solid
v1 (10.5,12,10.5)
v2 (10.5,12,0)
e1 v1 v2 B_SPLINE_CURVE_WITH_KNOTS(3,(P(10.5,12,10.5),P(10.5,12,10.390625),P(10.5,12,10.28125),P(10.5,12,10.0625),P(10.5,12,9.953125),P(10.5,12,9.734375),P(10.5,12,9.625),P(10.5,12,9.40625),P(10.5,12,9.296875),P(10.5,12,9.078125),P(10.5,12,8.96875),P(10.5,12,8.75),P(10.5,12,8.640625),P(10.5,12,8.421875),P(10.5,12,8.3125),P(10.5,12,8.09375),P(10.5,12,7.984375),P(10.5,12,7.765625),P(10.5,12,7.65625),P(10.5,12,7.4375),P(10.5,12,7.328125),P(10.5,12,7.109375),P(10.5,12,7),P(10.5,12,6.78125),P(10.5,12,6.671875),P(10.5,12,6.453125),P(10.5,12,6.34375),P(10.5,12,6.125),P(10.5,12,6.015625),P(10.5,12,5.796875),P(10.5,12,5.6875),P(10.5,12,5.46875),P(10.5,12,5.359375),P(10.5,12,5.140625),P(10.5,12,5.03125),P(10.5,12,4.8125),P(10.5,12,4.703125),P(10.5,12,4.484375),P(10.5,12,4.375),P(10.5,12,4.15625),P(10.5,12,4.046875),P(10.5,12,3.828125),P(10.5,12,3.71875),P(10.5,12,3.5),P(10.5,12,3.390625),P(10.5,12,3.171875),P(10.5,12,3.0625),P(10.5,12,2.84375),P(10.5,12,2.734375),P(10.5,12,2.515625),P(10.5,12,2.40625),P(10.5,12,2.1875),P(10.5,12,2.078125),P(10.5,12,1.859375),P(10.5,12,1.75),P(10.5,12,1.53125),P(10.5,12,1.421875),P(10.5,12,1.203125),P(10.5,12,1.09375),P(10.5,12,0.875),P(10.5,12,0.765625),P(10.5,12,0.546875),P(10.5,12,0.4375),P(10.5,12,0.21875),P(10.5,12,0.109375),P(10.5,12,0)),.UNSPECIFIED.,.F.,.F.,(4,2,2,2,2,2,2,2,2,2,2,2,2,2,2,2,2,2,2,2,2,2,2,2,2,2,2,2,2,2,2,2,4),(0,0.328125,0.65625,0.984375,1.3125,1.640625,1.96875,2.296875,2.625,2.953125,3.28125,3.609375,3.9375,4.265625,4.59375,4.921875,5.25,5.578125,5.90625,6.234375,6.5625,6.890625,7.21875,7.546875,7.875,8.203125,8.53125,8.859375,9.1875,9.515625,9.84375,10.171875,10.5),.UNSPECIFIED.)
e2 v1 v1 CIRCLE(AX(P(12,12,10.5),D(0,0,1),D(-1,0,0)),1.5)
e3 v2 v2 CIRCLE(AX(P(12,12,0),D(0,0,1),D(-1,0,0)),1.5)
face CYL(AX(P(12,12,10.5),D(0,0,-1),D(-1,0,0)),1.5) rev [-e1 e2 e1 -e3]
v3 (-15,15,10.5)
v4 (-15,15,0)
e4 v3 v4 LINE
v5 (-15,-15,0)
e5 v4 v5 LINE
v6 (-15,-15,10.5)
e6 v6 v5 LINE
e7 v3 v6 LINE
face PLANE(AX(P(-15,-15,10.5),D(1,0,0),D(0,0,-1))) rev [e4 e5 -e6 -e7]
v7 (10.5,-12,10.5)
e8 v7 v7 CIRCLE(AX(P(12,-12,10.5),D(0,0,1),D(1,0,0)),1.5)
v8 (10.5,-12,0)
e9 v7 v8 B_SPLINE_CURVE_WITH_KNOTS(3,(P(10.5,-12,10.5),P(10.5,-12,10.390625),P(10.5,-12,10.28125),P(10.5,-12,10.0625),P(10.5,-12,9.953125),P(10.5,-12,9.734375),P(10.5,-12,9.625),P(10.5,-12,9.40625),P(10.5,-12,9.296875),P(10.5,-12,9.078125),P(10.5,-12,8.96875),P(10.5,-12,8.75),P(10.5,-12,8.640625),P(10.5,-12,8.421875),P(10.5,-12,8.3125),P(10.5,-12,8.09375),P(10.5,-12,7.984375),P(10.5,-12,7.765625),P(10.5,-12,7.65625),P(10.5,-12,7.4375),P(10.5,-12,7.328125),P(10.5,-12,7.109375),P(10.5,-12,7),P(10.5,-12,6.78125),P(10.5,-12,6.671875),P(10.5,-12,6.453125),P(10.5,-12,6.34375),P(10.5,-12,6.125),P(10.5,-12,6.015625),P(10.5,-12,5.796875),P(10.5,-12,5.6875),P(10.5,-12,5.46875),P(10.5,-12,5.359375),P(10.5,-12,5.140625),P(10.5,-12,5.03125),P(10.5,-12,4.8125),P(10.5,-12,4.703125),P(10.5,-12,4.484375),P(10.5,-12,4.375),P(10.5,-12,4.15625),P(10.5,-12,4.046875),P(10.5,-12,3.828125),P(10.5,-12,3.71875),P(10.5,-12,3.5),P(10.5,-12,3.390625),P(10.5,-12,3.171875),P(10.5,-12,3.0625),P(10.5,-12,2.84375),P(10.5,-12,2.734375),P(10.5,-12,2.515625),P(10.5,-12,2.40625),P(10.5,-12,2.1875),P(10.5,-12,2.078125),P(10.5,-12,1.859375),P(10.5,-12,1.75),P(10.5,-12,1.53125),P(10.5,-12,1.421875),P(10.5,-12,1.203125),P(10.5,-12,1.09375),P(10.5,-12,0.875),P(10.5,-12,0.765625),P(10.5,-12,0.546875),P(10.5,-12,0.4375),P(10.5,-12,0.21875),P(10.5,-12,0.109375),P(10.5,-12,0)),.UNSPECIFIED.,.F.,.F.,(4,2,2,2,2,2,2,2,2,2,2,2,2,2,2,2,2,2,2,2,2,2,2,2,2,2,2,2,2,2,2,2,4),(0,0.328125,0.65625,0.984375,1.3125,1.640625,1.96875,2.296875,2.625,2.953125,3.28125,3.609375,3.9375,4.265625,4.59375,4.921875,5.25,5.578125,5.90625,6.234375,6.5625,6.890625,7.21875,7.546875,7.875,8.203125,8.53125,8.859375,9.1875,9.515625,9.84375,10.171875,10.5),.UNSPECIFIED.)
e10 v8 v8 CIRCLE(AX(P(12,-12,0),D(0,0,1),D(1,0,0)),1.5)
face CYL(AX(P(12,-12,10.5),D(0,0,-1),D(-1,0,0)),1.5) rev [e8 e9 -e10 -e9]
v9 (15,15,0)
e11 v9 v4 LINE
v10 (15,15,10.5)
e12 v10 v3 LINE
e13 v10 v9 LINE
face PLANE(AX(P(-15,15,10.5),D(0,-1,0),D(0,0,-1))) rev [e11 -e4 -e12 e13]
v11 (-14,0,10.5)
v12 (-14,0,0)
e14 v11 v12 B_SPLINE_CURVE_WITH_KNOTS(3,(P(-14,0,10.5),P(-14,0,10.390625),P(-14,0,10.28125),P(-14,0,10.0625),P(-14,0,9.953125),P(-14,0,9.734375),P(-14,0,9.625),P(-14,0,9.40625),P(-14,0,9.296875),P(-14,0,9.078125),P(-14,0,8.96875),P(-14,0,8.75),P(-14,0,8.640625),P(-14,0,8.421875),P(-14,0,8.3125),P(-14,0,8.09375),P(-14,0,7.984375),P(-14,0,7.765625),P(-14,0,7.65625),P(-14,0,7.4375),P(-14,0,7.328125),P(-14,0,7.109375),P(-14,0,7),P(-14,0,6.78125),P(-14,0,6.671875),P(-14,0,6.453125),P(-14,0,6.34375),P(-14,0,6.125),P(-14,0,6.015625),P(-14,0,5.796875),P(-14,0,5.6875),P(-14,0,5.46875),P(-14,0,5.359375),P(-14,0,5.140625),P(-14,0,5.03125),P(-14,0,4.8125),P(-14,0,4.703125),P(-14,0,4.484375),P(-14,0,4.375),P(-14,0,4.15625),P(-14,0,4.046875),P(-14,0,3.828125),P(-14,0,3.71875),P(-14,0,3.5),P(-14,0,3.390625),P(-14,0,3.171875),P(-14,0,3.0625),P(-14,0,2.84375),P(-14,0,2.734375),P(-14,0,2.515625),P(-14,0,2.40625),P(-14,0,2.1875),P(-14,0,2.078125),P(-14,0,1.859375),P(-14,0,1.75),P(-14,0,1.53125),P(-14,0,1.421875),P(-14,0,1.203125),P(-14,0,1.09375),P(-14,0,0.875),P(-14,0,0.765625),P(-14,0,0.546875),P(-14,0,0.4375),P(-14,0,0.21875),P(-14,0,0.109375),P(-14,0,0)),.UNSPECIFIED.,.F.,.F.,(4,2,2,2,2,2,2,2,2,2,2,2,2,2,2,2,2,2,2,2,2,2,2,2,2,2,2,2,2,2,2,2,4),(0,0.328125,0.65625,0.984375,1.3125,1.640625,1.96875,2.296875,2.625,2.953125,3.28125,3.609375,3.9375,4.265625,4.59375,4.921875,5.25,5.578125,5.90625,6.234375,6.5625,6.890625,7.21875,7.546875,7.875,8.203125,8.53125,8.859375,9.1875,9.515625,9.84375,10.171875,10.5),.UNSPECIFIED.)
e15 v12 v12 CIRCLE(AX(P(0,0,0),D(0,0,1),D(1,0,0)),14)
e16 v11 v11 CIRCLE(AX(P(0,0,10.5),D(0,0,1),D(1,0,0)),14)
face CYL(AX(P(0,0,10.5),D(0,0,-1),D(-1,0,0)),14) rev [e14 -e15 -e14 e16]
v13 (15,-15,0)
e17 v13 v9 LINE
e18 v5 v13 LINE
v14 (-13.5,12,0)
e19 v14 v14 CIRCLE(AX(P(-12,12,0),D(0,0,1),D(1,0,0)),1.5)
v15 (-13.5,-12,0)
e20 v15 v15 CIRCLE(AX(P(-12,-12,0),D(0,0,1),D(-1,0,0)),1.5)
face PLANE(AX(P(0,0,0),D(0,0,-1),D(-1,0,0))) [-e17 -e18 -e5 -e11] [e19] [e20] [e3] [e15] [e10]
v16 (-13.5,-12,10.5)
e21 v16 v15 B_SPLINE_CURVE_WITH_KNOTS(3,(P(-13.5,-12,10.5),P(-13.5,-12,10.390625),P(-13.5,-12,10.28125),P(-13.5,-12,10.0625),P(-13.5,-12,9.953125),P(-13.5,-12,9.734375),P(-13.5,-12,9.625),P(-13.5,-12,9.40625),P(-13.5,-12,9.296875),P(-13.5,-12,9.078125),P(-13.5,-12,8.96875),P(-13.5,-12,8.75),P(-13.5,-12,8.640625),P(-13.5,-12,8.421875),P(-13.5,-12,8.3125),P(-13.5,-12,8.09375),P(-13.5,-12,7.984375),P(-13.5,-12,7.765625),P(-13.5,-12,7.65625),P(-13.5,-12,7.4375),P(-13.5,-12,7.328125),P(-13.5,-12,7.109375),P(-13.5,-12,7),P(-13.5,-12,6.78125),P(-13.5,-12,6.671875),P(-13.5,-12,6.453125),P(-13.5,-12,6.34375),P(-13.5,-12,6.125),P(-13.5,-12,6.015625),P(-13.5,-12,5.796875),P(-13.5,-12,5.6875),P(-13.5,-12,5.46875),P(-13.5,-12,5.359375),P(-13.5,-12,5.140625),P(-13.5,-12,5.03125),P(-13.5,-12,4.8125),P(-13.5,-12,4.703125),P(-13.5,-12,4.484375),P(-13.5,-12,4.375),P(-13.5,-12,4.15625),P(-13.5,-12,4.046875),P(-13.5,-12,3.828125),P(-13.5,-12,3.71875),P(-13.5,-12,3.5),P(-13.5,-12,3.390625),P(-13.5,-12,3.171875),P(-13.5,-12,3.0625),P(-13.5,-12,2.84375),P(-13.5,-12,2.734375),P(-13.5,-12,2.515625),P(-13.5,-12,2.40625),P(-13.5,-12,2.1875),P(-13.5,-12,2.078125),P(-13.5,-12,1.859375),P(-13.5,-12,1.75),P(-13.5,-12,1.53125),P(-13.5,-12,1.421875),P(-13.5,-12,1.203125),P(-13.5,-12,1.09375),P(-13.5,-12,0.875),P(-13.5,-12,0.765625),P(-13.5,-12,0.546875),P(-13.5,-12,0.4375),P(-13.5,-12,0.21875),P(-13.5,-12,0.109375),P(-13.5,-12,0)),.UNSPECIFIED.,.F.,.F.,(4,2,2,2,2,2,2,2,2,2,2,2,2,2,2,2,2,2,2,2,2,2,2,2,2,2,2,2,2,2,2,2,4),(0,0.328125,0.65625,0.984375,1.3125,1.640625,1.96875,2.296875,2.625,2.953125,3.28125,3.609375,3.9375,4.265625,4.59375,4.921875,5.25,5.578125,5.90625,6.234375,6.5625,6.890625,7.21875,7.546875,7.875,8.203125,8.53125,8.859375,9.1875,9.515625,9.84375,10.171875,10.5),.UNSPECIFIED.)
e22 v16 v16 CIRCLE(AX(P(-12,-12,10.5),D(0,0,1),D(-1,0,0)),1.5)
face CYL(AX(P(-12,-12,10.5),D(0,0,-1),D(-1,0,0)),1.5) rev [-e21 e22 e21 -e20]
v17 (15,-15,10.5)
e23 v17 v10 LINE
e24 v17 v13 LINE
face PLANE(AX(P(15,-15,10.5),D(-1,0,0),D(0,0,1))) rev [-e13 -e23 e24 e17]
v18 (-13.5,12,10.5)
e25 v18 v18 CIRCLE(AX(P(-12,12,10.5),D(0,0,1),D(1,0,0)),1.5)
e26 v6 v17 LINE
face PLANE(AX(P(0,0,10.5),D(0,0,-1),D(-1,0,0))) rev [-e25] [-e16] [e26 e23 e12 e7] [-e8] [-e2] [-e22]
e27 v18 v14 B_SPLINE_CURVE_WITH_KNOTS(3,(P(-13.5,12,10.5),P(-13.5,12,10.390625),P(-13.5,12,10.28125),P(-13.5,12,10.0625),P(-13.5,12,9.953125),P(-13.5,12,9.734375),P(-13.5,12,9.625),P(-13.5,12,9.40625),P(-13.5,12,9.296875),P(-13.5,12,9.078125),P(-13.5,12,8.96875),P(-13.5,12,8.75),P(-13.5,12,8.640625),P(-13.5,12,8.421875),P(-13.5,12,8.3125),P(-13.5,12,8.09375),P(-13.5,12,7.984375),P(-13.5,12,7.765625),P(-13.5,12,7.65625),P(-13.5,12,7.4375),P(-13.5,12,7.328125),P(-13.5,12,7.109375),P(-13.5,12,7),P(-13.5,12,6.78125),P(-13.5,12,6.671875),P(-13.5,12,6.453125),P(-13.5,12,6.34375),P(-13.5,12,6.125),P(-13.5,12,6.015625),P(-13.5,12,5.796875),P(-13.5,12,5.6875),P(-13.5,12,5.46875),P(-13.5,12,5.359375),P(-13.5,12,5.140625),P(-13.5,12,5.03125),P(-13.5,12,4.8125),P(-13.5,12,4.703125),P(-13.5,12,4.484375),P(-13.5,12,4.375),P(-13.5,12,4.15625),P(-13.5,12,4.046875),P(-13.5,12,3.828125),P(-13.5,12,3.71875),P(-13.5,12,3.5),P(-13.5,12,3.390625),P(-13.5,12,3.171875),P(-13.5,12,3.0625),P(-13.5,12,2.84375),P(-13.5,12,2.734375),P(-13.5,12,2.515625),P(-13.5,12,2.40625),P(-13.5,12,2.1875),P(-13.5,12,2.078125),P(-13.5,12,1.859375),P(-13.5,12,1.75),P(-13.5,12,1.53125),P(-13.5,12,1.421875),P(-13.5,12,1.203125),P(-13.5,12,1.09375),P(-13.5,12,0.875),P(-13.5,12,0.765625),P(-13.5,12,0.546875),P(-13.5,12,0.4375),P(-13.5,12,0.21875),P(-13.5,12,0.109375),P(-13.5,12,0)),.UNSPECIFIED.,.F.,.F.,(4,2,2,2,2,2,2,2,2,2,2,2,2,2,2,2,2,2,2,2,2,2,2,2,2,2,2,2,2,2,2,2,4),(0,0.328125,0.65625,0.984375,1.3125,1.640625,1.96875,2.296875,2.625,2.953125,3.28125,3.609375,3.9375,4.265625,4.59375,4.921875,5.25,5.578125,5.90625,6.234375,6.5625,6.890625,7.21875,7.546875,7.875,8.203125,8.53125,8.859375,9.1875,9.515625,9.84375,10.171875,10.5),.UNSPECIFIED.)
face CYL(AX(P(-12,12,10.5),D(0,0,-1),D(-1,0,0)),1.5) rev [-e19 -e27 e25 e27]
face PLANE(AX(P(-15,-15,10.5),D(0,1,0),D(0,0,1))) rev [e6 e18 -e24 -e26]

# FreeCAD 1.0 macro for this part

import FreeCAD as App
import Part
import Sketcher
from FreeCAD import Vector

doc = App.newDocument("Part")
body = doc.addObject("PartDesign::Body", "Body")

# Sketch on XY plane
sketch1 = body.newObject("Sketcher::SketchObject", "Sketch")
sketch1.AttachmentSupport = (doc.getObject("XY_Plane"), [""])
sketch1.MapMode = "FlatFace"
sketch1.addGeometry(Part.LineSegment(Vector(-15, 15, 0), Vector(-15, -15, 0)), False)
sketch1.addGeometry(Part.LineSegment(Vector(-15, -15, 0), Vector(15, -15, 0)), False)
sketch1.addGeometry(Part.LineSegment(Vector(15, -15, 0), Vector(15, 15, 0)), False)
sketch1.addGeometry(Part.LineSegment(Vector(15, 15, 0), Vector(-15, 15, 0)), False)
sketch1.addGeometry(Part.Circle(Vector(-12, -12, 0), Vector(0, 0, 1), 1.5), False)
sketch1.addGeometry(Part.Circle(Vector(12, -12, 0), Vector(0, 0, 1), 1.5), False)
sketch1.addGeometry(Part.Circle(Vector(-12, 12, 0), Vector(0, 0, 1), 1.5), False)
sketch1.addGeometry(Part.Circle(Vector(0, 0, 0), Vector(0, 0, 1), 14), False)
sketch1.addGeometry(Part.Circle(Vector(12, 12, 0), Vector(0, 0, 1), 1.5), False)
sketch1.addConstraint(Sketcher.Constraint("Coincident", 0, 2, 1, 1))
sketch1.addConstraint(Sketcher.Constraint("Coincident", 1, 2, 2, 1))
sketch1.addConstraint(Sketcher.Constraint("Coincident", 2, 2, 3, 1))
sketch1.addConstraint(Sketcher.Constraint("Coincident", 3, 2, 0, 1))
sketch1.addConstraint(Sketcher.Constraint("Vertical", 0))
sketch1.addConstraint(Sketcher.Constraint("Horizontal", 1))
sketch1.addConstraint(Sketcher.Constraint("Vertical", 2))
sketch1.addConstraint(Sketcher.Constraint("Horizontal", 3))
sketch1.addConstraint(Sketcher.Constraint("Coincident", 7, 3, -1, 1))
sketch1.addConstraint(Sketcher.Constraint("Equal", 4, 5))
sketch1.addConstraint(Sketcher.Constraint("Equal", 5, 6))
sketch1.addConstraint(Sketcher.Constraint("Equal", 6, 8))
sketch1.addConstraint(Sketcher.Constraint("Symmetric", 5, 3, 6, 3, -1, 1))
sketch1.addConstraint(Sketcher.Constraint("Symmetric", 4, 3, 8, 3, -1, 1))
sketch1.addConstraint(Sketcher.Constraint("Symmetric", 0, 2, 2, 2, -1, 1))
sketch1.addConstraint(Sketcher.Constraint("Symmetric", 4, 3, 5, 3, -2))
sketch1.addConstraint(Sketcher.Constraint("Equal", 3, 0))
sketch1.addConstraint(Sketcher.Constraint("Diameter", 4, 3.0))
sketch1.addConstraint(Sketcher.Constraint("Diameter", 7, 28.0))
sketch1.addConstraint(Sketcher.Constraint("DistanceX", 1, 1, 1, 2, 30.0))
sketch1.addConstraint(Sketcher.Constraint("DistanceX", 4, 3, -1, 1, 12.0))
sketch1.addConstraint(Sketcher.Constraint("DistanceY", 4, 3, -1, 1, 12.0))
pad1 = body.newObject("PartDesign::Pad", "Pad")
pad1.Profile = sketch1
pad1.Length = 10.5

doc.recompute()
